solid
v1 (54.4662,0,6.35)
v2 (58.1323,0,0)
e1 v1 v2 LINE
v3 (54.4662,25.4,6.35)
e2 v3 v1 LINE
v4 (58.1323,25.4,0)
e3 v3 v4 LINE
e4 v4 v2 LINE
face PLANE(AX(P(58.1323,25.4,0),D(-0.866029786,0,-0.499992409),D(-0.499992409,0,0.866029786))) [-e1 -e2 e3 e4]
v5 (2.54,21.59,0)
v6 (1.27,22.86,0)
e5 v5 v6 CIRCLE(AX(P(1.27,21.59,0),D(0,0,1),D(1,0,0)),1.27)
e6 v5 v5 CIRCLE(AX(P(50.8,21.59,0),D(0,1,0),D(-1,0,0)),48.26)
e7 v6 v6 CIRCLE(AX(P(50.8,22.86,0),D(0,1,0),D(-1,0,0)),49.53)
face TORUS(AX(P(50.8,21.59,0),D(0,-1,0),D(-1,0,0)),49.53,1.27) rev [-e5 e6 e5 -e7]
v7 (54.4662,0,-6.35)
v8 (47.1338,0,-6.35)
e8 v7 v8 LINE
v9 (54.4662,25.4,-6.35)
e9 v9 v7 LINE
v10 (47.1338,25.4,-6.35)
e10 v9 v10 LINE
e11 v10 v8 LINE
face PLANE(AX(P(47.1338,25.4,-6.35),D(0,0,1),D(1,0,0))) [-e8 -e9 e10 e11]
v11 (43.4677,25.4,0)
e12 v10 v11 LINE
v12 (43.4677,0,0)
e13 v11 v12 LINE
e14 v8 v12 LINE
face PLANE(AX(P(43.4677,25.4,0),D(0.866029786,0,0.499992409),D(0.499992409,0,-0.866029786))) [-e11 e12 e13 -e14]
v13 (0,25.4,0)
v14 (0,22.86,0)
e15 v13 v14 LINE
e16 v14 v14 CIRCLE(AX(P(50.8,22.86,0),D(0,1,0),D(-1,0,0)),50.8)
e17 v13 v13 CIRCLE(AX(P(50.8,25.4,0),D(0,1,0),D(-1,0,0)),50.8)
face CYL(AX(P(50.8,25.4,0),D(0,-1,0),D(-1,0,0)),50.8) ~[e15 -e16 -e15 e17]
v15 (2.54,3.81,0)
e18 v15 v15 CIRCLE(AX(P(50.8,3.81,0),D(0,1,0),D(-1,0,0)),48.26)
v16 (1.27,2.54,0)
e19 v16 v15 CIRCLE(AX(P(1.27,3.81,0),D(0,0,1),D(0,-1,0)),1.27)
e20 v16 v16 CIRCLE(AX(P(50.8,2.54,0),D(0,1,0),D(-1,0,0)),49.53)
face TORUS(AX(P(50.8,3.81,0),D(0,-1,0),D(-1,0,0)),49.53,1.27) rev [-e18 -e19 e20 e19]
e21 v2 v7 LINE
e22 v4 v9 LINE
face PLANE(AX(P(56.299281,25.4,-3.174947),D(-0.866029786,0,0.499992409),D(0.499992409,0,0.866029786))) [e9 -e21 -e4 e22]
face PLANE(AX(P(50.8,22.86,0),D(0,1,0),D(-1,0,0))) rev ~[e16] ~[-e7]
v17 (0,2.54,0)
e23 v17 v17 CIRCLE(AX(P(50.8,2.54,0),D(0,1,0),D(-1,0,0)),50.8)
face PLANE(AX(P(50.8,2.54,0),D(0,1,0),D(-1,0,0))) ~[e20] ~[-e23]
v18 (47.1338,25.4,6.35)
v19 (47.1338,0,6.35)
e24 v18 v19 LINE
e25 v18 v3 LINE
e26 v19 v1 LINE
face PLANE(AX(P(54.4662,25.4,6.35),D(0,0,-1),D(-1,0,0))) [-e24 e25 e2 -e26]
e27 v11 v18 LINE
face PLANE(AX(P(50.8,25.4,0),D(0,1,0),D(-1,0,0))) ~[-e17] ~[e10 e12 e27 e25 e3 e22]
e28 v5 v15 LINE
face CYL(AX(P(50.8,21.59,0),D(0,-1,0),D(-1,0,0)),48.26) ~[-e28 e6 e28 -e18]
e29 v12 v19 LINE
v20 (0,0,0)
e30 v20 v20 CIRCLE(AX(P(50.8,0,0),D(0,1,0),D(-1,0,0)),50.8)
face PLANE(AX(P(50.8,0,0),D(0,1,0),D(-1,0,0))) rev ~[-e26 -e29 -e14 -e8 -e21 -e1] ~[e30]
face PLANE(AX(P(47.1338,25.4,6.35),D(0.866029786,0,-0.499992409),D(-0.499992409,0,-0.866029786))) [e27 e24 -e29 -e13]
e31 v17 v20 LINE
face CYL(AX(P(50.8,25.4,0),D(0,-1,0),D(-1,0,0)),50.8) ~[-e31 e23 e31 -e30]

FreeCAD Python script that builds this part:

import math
import FreeCAD as App
import Part
import Sketcher
Q = App.Units.Quantity


def add_polygon(sketch, points):
    """Adds a closed chain of lines whose ends are joined by coincident constraints."""
    first, n = sketch.GeometryCount, len(points)
    for a, b in zip(points, points[1:] + points[:1]):
        sketch.addGeometry(Part.LineSegment(App.Vector(*a, 0), App.Vector(*b, 0)), False)
    for i in range(n):
        sketch.addConstraint(Sketcher.Constraint("Coincident", first + i, 2, first + (i + 1) % n, 1))

doc = App.newDocument("Part")
body = doc.addObject("PartDesign::Body", "Body")

sketch1 = body.newObject("Sketcher::SketchObject", "Sketch")
sketch1.AttachmentSupport = (doc.getObject("XY_Plane"), [""])
sketch1.MapMode = "FlatFace"
sketch1.addGeometry([
    Part.LineSegment(App.Vector(0, 2.54, 0), App.Vector(0, 0, 0)),
    Part.LineSegment(App.Vector(0, 0, 0), App.Vector(50.8, 0, 0)),
    Part.LineSegment(App.Vector(50.8, 0, 0), App.Vector(50.8, 25.4, 0)),
    Part.LineSegment(App.Vector(50.8, 25.4, 0), App.Vector(0, 25.4, 0)),
    Part.LineSegment(App.Vector(0, 25.4, 0), App.Vector(0, 22.86, 0)),
    Part.LineSegment(App.Vector(0, 22.86, 0), App.Vector(1.27, 22.86, 0)),
    Part.ArcOfCircle(Part.Circle(App.Vector(1.27, 21.59, 0), App.Vector(0, 0, 1), 1.27), math.radians(0), math.radians(90)),
    Part.LineSegment(App.Vector(2.54, 21.59, 0), App.Vector(2.54, 3.81, 0)),
    Part.ArcOfCircle(Part.Circle(App.Vector(1.27, 3.81, 0), App.Vector(0, 0, 1), 1.27), math.radians(-90), math.radians(0)),
    Part.LineSegment(App.Vector(1.27, 2.54, 0), App.Vector(0, 2.54, 0)),
], False)
sketch1.addGeometry(Part.LineSegment(App.Vector(50.8, 0, 0), App.Vector(50.8, 25.4, 0)), True)
sketch1.addConstraint([
    Sketcher.Constraint("Coincident", 0, 2, 1, 1),
    Sketcher.Constraint("Coincident", 1, 2, 2, 1),
    Sketcher.Constraint("Coincident", 2, 2, 3, 1),
    Sketcher.Constraint("Coincident", 3, 2, 4, 1),
    Sketcher.Constraint("Coincident", 4, 2, 5, 1),
    Sketcher.Constraint("Tangent", 5, 2, 6, 2),
    Sketcher.Constraint("Tangent", 6, 1, 7, 1),
    Sketcher.Constraint("Tangent", 7, 2, 8, 2),
    Sketcher.Constraint("Tangent", 8, 1, 9, 1),
    Sketcher.Constraint("Coincident", 9, 2, 0, 1),
    Sketcher.Constraint("Vertical", 0),
    Sketcher.Constraint("Horizontal", 1),
    Sketcher.Constraint("Vertical", 2),
    Sketcher.Constraint("Horizontal", 3),
    Sketcher.Constraint("Vertical", 4),
    Sketcher.Constraint("Horizontal", 5),
    Sketcher.Constraint("Vertical", 7),
    Sketcher.Constraint("Horizontal", 9),
    Sketcher.Constraint("Vertical", 10),
    Sketcher.Constraint("Coincident", 0, 2, -1, 1),
    Sketcher.Constraint("Coincident", 10, 1, 1, 2),
    Sketcher.Constraint("Equal", 6, 8),
    Sketcher.Constraint("PointOnObject", 3, 2, -2),
    Sketcher.Constraint("Horizontal", 3, 2, 10, 2),
    Sketcher.Constraint("Equal", 0, 4),
    Sketcher.Constraint("DistanceX", 1, 1, 1, 2, Q("2 in")),
    Sketcher.Constraint("DistanceY", 2, 1, 2, 2, Q("1 in")),
    Sketcher.Constraint("Radius", 6, Q("0.05 in")),
    Sketcher.Constraint("DistanceY", 0, 2, 0, 1, Q("0.1 in")),
    Sketcher.Constraint("DistanceX", 5, 1, 5, 2, Q("0.05 in")),
])
revolution = body.newObject("PartDesign::Revolution", "Revolution")
revolution.Profile = sketch1
revolution.ReferenceAxis = (sketch1, ["Axis0"])
revolution.Angle = 360

sketch2 = body.newObject("Sketcher::SketchObject", "Sketch001")
sketch2.AttachmentSupport = (doc.getObject("XZ_Plane"), [""])
sketch2.MapMode = "FlatFace"
sketch2.AttachmentOffset = App.Placement(App.Vector(0, 0, -1 * 25.4), App.Rotation())
add_polygon(sketch2, [(58.1323, 0), (54.4662, -6.35), (47.1338, -6.35), (43.4677, 0), (47.1338, 6.35), (54.4662, 6.35)])
sketch2.addConstraint([
    Sketcher.Constraint("Horizontal", 1),
    Sketcher.Constraint("Horizontal", 4),
    Sketcher.Constraint("Symmetric", 1, 2, 3, 2, -1),
    Sketcher.Constraint("PointOnObject", 2, 2, -1),
    Sketcher.Constraint("PointOnObject", 5, 2, -1),
    Sketcher.Constraint("Parallel", 0, 3),
    Sketcher.Constraint("Parallel", 2, 5),
    Sketcher.Constraint("DistanceY", 1, 2, 3, 2, Q("0.5 in")),
    Sketcher.Constraint("Angle", 0, Q("-119.9995 deg")),
    Sketcher.Constraint("DistanceX", 2, 2, 0, 2, Q("0.433 in")),
    Sketcher.Constraint("DistanceX", -1, 1, 0, 2, 54.4662),
])
pocket1 = body.newObject("PartDesign::Pocket", "Pocket")
pocket1.Profile = sketch2
pocket1.Length = Q("1 in")
pocket1.Reversed = True

doc.recompute()
